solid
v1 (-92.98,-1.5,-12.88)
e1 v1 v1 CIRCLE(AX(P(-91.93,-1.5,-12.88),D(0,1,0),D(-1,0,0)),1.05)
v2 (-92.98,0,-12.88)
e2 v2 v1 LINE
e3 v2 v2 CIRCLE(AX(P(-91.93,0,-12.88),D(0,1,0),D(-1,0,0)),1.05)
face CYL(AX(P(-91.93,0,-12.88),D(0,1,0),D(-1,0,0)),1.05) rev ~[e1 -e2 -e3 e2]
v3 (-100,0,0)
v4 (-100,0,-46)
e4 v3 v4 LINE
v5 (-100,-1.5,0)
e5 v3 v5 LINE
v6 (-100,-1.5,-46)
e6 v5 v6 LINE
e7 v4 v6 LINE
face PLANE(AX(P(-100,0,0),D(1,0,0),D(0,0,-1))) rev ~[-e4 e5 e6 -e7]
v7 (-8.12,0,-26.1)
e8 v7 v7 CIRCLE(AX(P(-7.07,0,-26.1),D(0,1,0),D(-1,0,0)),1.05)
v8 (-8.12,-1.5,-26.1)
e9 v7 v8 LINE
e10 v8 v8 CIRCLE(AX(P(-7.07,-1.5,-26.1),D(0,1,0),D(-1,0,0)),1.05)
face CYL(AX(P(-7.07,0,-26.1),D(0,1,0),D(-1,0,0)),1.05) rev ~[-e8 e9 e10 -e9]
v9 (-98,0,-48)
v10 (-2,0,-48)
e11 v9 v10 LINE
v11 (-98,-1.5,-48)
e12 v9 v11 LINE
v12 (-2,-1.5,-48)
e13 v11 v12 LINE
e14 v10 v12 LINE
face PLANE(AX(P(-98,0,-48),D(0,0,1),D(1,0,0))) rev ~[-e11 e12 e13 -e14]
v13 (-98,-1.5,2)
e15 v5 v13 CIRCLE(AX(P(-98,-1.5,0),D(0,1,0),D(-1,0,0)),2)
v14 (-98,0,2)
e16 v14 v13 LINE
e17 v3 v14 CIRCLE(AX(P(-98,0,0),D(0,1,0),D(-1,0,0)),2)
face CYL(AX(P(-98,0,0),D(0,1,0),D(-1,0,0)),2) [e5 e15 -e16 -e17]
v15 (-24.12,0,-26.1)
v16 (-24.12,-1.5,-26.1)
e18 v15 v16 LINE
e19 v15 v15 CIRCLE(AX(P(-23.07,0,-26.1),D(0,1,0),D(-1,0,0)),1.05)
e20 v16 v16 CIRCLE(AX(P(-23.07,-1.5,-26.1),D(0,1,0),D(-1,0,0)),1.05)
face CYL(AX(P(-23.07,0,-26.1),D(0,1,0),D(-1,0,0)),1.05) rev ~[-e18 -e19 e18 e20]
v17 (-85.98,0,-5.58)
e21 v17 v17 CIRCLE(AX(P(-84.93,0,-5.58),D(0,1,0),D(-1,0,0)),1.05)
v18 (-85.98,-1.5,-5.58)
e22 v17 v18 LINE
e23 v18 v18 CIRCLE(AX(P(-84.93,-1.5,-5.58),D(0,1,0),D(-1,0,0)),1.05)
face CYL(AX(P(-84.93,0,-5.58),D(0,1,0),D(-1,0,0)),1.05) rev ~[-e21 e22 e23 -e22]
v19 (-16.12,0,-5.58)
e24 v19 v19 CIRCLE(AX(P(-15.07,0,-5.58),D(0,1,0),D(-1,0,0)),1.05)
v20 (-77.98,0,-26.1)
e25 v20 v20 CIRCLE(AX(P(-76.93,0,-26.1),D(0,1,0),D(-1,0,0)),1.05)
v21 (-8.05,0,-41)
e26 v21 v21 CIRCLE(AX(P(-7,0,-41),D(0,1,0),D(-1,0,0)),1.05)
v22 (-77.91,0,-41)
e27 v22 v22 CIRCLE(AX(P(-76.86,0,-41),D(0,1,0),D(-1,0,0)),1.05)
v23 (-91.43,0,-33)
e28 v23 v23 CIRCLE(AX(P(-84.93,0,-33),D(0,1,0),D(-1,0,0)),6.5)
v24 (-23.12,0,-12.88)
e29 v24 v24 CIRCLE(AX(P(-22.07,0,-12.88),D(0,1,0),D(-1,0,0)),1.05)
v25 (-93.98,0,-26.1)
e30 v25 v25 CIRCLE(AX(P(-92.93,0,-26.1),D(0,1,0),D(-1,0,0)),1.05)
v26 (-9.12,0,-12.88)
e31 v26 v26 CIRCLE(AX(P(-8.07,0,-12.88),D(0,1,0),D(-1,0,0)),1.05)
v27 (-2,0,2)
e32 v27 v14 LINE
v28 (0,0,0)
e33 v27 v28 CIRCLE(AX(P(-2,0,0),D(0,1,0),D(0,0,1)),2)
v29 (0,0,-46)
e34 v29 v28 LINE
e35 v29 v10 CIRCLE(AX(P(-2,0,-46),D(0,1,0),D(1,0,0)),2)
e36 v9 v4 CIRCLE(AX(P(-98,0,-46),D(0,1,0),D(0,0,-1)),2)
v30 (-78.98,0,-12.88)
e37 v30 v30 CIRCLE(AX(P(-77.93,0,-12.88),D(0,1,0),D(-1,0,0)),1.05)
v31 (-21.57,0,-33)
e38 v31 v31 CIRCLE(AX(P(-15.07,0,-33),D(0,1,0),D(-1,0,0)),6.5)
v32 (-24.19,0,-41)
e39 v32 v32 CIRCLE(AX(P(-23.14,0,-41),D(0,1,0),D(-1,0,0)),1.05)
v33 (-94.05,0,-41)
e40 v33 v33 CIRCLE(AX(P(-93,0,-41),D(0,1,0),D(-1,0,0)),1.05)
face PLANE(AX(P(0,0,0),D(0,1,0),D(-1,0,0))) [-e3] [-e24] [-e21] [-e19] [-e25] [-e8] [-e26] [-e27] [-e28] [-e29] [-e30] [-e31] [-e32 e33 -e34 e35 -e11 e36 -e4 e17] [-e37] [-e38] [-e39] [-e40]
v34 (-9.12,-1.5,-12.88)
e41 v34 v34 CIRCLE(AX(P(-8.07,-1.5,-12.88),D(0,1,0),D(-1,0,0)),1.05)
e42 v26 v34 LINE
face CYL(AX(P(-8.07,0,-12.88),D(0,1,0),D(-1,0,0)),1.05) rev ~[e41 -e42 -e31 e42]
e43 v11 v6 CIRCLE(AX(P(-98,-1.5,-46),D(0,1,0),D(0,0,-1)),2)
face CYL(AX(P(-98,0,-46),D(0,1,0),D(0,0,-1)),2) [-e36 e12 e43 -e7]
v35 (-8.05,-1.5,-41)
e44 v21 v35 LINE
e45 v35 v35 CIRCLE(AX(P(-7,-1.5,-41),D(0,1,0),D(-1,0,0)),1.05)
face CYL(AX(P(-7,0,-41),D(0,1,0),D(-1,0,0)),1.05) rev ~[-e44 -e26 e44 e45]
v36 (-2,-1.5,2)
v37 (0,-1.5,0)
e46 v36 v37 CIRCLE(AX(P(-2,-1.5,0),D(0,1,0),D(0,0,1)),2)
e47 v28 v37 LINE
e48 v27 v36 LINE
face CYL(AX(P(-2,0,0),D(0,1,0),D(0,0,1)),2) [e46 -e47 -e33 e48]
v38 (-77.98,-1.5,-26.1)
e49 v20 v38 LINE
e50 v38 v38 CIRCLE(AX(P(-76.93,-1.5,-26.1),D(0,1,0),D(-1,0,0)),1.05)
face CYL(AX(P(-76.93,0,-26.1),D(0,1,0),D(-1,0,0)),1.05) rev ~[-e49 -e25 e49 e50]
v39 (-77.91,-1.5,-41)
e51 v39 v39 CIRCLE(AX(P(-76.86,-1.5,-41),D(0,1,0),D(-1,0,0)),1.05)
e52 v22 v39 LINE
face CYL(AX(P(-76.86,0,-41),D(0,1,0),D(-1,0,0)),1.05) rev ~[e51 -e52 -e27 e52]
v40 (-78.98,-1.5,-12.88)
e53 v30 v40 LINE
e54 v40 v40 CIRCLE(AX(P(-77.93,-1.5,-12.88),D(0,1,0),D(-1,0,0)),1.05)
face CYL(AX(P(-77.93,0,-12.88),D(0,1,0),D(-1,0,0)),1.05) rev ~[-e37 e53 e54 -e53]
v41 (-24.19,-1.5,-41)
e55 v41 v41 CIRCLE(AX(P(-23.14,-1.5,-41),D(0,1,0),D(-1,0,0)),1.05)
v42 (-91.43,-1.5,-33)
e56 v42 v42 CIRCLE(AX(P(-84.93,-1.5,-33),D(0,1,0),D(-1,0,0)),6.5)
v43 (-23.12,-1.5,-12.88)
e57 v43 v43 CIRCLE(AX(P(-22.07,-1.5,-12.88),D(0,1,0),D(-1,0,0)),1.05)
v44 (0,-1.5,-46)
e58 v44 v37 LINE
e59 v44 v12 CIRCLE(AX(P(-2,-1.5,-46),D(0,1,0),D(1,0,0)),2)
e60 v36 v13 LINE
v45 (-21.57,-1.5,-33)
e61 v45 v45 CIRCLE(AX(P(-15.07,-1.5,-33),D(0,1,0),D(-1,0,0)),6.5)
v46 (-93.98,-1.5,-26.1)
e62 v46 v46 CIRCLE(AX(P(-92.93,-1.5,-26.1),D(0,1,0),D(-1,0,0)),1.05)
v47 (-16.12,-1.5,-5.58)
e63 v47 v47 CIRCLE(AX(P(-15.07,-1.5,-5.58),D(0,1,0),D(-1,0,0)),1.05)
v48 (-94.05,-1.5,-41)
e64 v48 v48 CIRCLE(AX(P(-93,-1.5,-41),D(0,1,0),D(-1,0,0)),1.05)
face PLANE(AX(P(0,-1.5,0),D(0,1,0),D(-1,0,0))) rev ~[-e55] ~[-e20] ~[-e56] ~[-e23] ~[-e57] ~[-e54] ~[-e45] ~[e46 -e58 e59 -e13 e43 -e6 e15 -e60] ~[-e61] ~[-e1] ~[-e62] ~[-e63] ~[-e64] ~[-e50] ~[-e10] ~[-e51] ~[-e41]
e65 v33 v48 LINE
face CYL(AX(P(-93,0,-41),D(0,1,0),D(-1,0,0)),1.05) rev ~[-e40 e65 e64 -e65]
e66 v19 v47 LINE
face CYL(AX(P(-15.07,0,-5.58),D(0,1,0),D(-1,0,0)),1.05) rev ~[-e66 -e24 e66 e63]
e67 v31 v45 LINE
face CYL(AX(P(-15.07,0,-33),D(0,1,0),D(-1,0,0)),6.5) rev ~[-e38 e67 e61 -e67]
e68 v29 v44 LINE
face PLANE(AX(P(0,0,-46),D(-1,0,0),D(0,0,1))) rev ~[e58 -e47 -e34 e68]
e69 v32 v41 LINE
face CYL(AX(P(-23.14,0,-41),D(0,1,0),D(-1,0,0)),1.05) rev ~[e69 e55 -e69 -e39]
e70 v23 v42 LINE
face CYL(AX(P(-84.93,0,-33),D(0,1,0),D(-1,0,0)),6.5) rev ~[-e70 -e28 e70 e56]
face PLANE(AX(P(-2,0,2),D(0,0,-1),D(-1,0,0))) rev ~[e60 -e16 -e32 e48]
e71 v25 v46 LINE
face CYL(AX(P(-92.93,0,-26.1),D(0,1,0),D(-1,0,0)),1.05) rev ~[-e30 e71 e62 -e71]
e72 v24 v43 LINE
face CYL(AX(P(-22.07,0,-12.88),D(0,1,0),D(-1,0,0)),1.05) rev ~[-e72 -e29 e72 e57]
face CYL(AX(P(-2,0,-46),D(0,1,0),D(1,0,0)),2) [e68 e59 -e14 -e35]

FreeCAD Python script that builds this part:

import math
import FreeCAD as App
import Part
import Sketcher

V = App.Vector
Q = App.Units.Quantity

doc = App.newDocument("Part")
body = doc.addObject("PartDesign::Body", "Body")

sketch1 = body.newObject("Sketcher::SketchObject", "Sketch")
sketch1.AttachmentSupport = (doc.getObject("XZ_Plane"), [""])
sketch1.MapMode = "FlatFace"
sketch1.addGeometry(Part.LineSegment(V(-100, -46, 0), V(-100, 0, 0)), False)
sketch1.addGeometry(Part.ArcOfCircle(Part.Circle(V(-98, 0, 0), V(0, 0, 1), 2), math.radians(90), math.radians(180)), False)
sketch1.addGeometry(Part.LineSegment(V(-98, 2, 0), V(-2, 2, 0)), False)
sketch1.addGeometry(Part.ArcOfCircle(Part.Circle(V(-2, 0, 0), V(0, 0, 1), 2), math.radians(0), math.radians(90)), False)
sketch1.addGeometry(Part.LineSegment(V(0, 0, 0), V(0, -46, 0)), False)
sketch1.addGeometry(Part.ArcOfCircle(Part.Circle(V(-2, -46, 0), V(0, 0, 1), 2), math.radians(-90), math.radians(0)), False)
sketch1.addGeometry(Part.LineSegment(V(-2, -48, 0), V(-98, -48, 0)), False)
sketch1.addGeometry(Part.ArcOfCircle(Part.Circle(V(-98, -46, 0), V(0, 0, 1), 2), math.radians(180), math.radians(270)), False)
sketch1.addGeometry(Part.Circle(V(-7, -41, 0), V(0, 0, 1), 1.1), False)
sketch1.addGeometry(Part.Circle(V(-23.1, -41, 0), V(0, 0, 1), 1.1), False)
sketch1.addGeometry(Part.Circle(V(-15.1, -33, 0), V(0, 0, 1), 6.5), False)
sketch1.addGeometry(Part.Circle(V(-7.1, -26.1, 0), V(0, 0, 1), 1.1), False)
sketch1.addGeometry(Part.Circle(V(-23.1, -26.1, 0), V(0, 0, 1), 1.1), False)
sketch1.addGeometry(Part.Circle(V(-76.9, -41, 0), V(0, 0, 1), 1.1), False)
sketch1.addGeometry(Part.Circle(V(-93, -41, 0), V(0, 0, 1), 1.1), False)
sketch1.addGeometry(Part.Circle(V(-84.9, -33, 0), V(0, 0, 1), 6.5), False)
sketch1.addGeometry(Part.Circle(V(-76.9, -26.1, 0), V(0, 0, 1), 1.1), False)
sketch1.addGeometry(Part.Circle(V(-92.9, -26.1, 0), V(0, 0, 1), 1.1), False)
sketch1.addGeometry(Part.Circle(V(-8.1, -12.9, 0), V(0, 0, 1), 1.1), False)
sketch1.addGeometry(Part.Circle(V(-22.1, -12.9, 0), V(0, 0, 1), 1.1), False)
sketch1.addGeometry(Part.Circle(V(-15.1, -5.6, 0), V(0, 0, 1), 1.1), False)
sketch1.addGeometry(Part.Circle(V(-77.9, -12.9, 0), V(0, 0, 1), 1.1), False)
sketch1.addGeometry(Part.Circle(V(-91.9, -12.9, 0), V(0, 0, 1), 1.1), False)
sketch1.addGeometry(Part.Circle(V(-84.9, -5.6, 0), V(0, 0, 1), 1.1), False)
sketch1.addConstraint(Sketcher.Constraint("Tangent", 0, 2, 1, 2))
sketch1.addConstraint(Sketcher.Constraint("Tangent", 1, 1, 2, 1))
sketch1.addConstraint(Sketcher.Constraint("Tangent", 2, 2, 3, 2))
sketch1.addConstraint(Sketcher.Constraint("Tangent", 3, 1, 4, 1))
sketch1.addConstraint(Sketcher.Constraint("Tangent", 4, 2, 5, 2))
sketch1.addConstraint(Sketcher.Constraint("Tangent", 5, 1, 6, 1))
sketch1.addConstraint(Sketcher.Constraint("Tangent", 6, 2, 7, 2))
sketch1.addConstraint(Sketcher.Constraint("Tangent", 7, 1, 0, 1))
sketch1.addConstraint(Sketcher.Constraint("Vertical", 0))
sketch1.addConstraint(Sketcher.Constraint("Horizontal", 2))
sketch1.addConstraint(Sketcher.Constraint("Vertical", 4))
sketch1.addConstraint(Sketcher.Constraint("Horizontal", 6))
sketch1.addConstraint(Sketcher.Constraint("Coincident", 3, 1, -1, 1))
sketch1.addConstraint(Sketcher.Constraint("Equal", 1, 3))
sketch1.addConstraint(Sketcher.Constraint("Equal", 3, 5))
sketch1.addConstraint(Sketcher.Constraint("Equal", 5, 7))
sketch1.addConstraint(Sketcher.Constraint("Equal", 8, 9))
sketch1.addConstraint(Sketcher.Constraint("Equal", 9, 11))
sketch1.addConstraint(Sketcher.Constraint("Equal", 11, 12))
sketch1.addConstraint(Sketcher.Constraint("Equal", 12, 13))
sketch1.addConstraint(Sketcher.Constraint("Equal", 13, 14))
sketch1.addConstraint(Sketcher.Constraint("Equal", 10, 15))
sketch1.addConstraint(Sketcher.Constraint("Equal", 14, 16))
sketch1.addConstraint(Sketcher.Constraint("Equal", 16, 17))
sketch1.addConstraint(Sketcher.Constraint("Equal", 17, 18))
sketch1.addConstraint(Sketcher.Constraint("Equal", 18, 19))
sketch1.addConstraint(Sketcher.Constraint("Equal", 19, 20))
sketch1.addConstraint(Sketcher.Constraint("Equal", 20, 21))
sketch1.addConstraint(Sketcher.Constraint("Equal", 21, 22))
sketch1.addConstraint(Sketcher.Constraint("Equal", 22, 23))
sketch1.addConstraint(Sketcher.Constraint("Horizontal", 8, 3, 9, 3))
sketch1.addConstraint(Sketcher.Constraint("Horizontal", 11, 3, 12, 3))
sketch1.addConstraint(Sketcher.Constraint("Horizontal", 9, 3, 13, 3))
sketch1.addConstraint(Sketcher.Constraint("Horizontal", 13, 3, 14, 3))
sketch1.addConstraint(Sketcher.Constraint("Horizontal", 10, 3, 15, 3))
sketch1.addConstraint(Sketcher.Constraint("Horizontal", 12, 3, 16, 3))
sketch1.addConstraint(Sketcher.Constraint("Horizontal", 16, 3, 17, 3))
sketch1.addConstraint(Sketcher.Constraint("Horizontal", 18, 3, 19, 3))
sketch1.addConstraint(Sketcher.Constraint("Horizontal", 19, 3, 21, 3))
sketch1.addConstraint(Sketcher.Constraint("Horizontal", 21, 3, 22, 3))
sketch1.addConstraint(Sketcher.Constraint("Horizontal", 20, 3, 23, 3))
sketch1.addConstraint(Sketcher.Constraint("Vertical", 10, 3, 20, 3))
sketch1.addConstraint(Sketcher.Constraint("Vertical", 15, 3, 23, 3))
sketch1.addConstraint(Sketcher.Constraint("Diameter", 10, Q("13 mm")))
sketch1.addConstraint(Sketcher.Constraint("Radius", 1, Q("2 mm")))
sketch1.addConstraint(Sketcher.Constraint("Diameter", 8, Q("2.1 mm")))
sketch1.addConstraint(Sketcher.Constraint("DistanceX", 2, 1, 2, 2, Q("96 mm")))
sketch1.addConstraint(Sketcher.Constraint("DistanceY", 0, 1, 0, 2, Q("46 mm")))
sketch1.addConstraint(Sketcher.Constraint("DistanceX", 8, 3, -1, 1, Q("7 mm")))
sketch1.addConstraint(Sketcher.Constraint("DistanceY", 8, 3, -1, 1, Q("41 mm")))
sketch1.addConstraint(Sketcher.Constraint("DistanceY", 10, 3, -1, 1, Q("33 mm")))
sketch1.addConstraint(Sketcher.Constraint("DistanceX", 14, 3, -1, 1, Q("93 mm")))
sketch1.addConstraint(Sketcher.Constraint("DistanceX", 10, 3, 11, 3, Q("8 mm")))
sketch1.addConstraint(Sketcher.Constraint("DistanceX", 12, 3, 10, 3, Q("8 mm")))
sketch1.addConstraint(Sketcher.Constraint("DistanceX", 15, 3, 16, 3, Q("8 mm")))
sketch1.addConstraint(Sketcher.Constraint("DistanceX", 17, 3, 15, 3, Q("8 mm")))
sketch1.addConstraint(Sketcher.Constraint("DistanceX", 18, 3, 11, 3, Q("1 mm")))
sketch1.addConstraint(Sketcher.Constraint("DistanceX", 12, 3, 19, 3, Q("1 mm")))
sketch1.addConstraint(Sketcher.Constraint("DistanceX", 21, 3, 16, 3, Q("1 mm")))
sketch1.addConstraint(Sketcher.Constraint("DistanceX", 17, 3, 22, 3, Q("1 mm")))
sketch1.addConstraint(Sketcher.Constraint("DistanceY", 11, 3, -1, 1, Q("26.1 mm")))
sketch1.addConstraint(Sketcher.Constraint("DistanceY", 18, 3, 20, 3, Q("7.3 mm")))
sketch1.addConstraint(Sketcher.Constraint("DistanceX", 9, 3, -1, 1, Q("23.14 mm")))
sketch1.addConstraint(Sketcher.Constraint("DistanceX", 10, 3, -1, 1, Q("15.07 mm")))
sketch1.addConstraint(Sketcher.Constraint("DistanceX", 13, 3, -1, 1, Q("76.86 mm")))
sketch1.addConstraint(Sketcher.Constraint("DistanceX", 15, 3, -1, 1, Q("84.93 mm")))
sketch1.addConstraint(Sketcher.Constraint("DistanceY", 18, 3, -1, 1, Q("12.88 mm")))
pad1 = body.newObject("PartDesign::Pad", "Pad")
pad1.Profile = sketch1
pad1.Length = 1.5

doc.recompute()
